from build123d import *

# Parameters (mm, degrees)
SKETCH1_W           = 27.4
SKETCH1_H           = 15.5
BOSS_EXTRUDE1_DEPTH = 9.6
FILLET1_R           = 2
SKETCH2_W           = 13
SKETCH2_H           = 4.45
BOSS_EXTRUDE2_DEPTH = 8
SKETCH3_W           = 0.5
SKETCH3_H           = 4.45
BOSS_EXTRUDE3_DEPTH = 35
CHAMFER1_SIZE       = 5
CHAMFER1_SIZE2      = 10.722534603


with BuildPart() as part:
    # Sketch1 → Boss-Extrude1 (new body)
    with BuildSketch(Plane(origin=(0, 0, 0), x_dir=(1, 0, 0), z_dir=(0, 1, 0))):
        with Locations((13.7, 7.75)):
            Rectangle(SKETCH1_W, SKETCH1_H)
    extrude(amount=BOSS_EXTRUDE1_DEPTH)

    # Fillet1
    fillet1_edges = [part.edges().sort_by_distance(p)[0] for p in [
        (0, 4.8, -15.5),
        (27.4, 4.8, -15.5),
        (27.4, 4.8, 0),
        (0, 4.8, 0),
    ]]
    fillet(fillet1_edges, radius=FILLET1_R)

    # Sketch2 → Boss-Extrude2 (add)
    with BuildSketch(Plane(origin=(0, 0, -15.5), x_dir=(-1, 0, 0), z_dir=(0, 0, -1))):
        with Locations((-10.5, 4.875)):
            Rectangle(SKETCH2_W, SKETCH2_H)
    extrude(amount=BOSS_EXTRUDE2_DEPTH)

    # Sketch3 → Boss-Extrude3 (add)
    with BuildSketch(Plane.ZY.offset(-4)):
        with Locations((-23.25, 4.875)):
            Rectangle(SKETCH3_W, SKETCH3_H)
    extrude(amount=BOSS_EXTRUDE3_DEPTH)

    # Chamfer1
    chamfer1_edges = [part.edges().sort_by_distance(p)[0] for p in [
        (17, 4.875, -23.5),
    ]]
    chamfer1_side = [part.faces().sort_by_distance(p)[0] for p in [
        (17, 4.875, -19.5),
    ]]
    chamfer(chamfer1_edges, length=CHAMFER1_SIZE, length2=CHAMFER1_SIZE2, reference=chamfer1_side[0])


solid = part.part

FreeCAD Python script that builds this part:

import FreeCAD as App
import Part
import Sketcher

V = App.Vector


def edges_at(feature, points):
    """Names of the edges that pass closest to the given points."""
    edges = feature.Shape.Edges
    near = lambda p: min(range(len(edges)), key=lambda i: edges[i].distToShape(Part.Vertex(*p))[0])
    return sorted({f"Edge{near(p) + 1}" for p in points})


def add_polygon(sketch, points):
    """Adds a closed chain of lines whose ends are joined by coincident constraints."""
    first, n = sketch.GeometryCount, len(points)
    for a, b in zip(points, points[1:] + points[:1]):
        sketch.addGeometry(Part.LineSegment(App.Vector(*a, 0), App.Vector(*b, 0)), False)
    for i in range(n):
        sketch.addConstraint(Sketcher.Constraint("Coincident", first + i, 2, first + (i + 1) % n, 1))

doc = App.newDocument("Part")
params = doc.addObject("Spreadsheet::Sheet", "Params")
for row, (alias, value) in enumerate([
    ("sketch1_width", "27.4 mm"),
    ("sketch1_height", "15.5 mm"),
    ("pad1_length", "9.6 mm"),
    ("fillet_radius", "2 mm"),
    ("sketch2_width", "13 mm"),
    ("sketch2_height", "4.45 mm"),
    ("pad2_length", "8 mm"),
    ("sketch3_height", "0.5 mm"),
    ("sketch3_width", "4.45 mm"),
    ("pad3_length", "35 mm"),
    ("chamfer_size", "5 mm"),
    ("chamfer_size2", "10.722535 mm"),
], start=1):
    params.set(f"A{row}", alias)
    params.set(f"B{row}", "=" + value)
    params.setAlias(f"B{row}", alias)

body = doc.addObject("PartDesign::Body", "Body")

# Sketch on XZ plane
sketch1 = body.newObject("Sketcher::SketchObject", "Sketch")
sketch1.AttachmentSupport = (doc.getObject("XZ_Plane"), [""])
sketch1.MapMode = "FlatFace"
add_polygon(sketch1, [(0, -16), (0, 0), (27, 0), (27, -16)])  # lines 0-3
sketch1.addConstraint([
    Sketcher.Constraint("Vertical", 0),
    Sketcher.Constraint("Horizontal", 1),
    Sketcher.Constraint("Vertical", 2),
    Sketcher.Constraint("Horizontal", 3),
    Sketcher.Constraint("Coincident", 0, 2, -1, 1),
    Sketcher.Constraint("DistanceX", 1, 1, 1, 2, 27.4),
    Sketcher.Constraint("DistanceY", 0, 1, 0, 2, 15.5),
])
sketch1.setExpression("Constraints[9]", "Params.sketch1_width")
sketch1.setExpression("Constraints[10]", "Params.sketch1_height")
pad1 = body.newObject("PartDesign::Pad", "Pad")
pad1.Profile = sketch1
pad1.setExpression("Length", "Params.pad1_length")
pad1.Reversed = True
doc.recompute()

fillet = body.newObject("PartDesign::Fillet", "Fillet")
fillet.Base = (pad1, edges_at(pad1, [
    (0, 4.8, -15.5),
    (27.4, 4.8, -15.5),
    (27.4, 4.8, 0),
    (0, 4.8, 0),
]))
fillet.setExpression("Radius", "Params.fillet_radius")

# Sketch on XY plane
sketch2 = body.newObject("Sketcher::SketchObject", "Sketch001")
sketch2.AttachmentSupport = (doc.getObject("XY_Plane"), [""])
sketch2.MapMode = "FlatFace"
sketch2.AttachmentOffset = App.Placement(V(0, 0, -15.5), App.Rotation())
add_polygon(sketch2, [(17, 7.1), (17, 2.6), (4, 2.6), (4, 7.1)])  # lines 0-3
sketch2.addConstraint([
    Sketcher.Constraint("Vertical", 0),
    Sketcher.Constraint("Horizontal", 1),
    Sketcher.Constraint("Vertical", 2),
    Sketcher.Constraint("Horizontal", 3),
    Sketcher.Constraint("DistanceX", 1, 2, 1, 1, 13.0),
    Sketcher.Constraint("DistanceX", -1, 1, 0, 2, 17.0),
    Sketcher.Constraint("DistanceY", 0, 2, 0, 1, 4.45),
    Sketcher.Constraint("DistanceY", -1, 1, 2, 2, 7.1),
])
sketch2.setExpression("Constraints[8]", "Params.sketch2_width")
sketch2.setExpression("Constraints[10]", "Params.sketch2_height")
pad2 = body.newObject("PartDesign::Pad", "Pad001")
pad2.Profile = sketch2
pad2.setExpression("Length", "Params.pad2_length")
pad2.Reversed = True

# Sketch on YZ plane
sketch3 = body.newObject("Sketcher::SketchObject", "Sketch002")
sketch3.AttachmentSupport = (doc.getObject("YZ_Plane"), [""])
sketch3.MapMode = "FlatFace"
sketch3.AttachmentOffset = App.Placement(V(0, 0, 4), App.Rotation())
add_polygon(sketch3, [(7.1, -23.5), (2.6, -23.5), (2.6, -23), (7.1, -23)])  # lines 0-3
sketch3.addConstraint([
    Sketcher.Constraint("Horizontal", 0),
    Sketcher.Constraint("Vertical", 1),
    Sketcher.Constraint("Horizontal", 2),
    Sketcher.Constraint("Vertical", 3),
    Sketcher.Constraint("DistanceY", 1, 1, 1, 2, 0.5),
    Sketcher.Constraint("DistanceY", 1, 2, -1, 1, 23.0),
    Sketcher.Constraint("DistanceX", 0, 2, 0, 1, 4.45),
    Sketcher.Constraint("DistanceX", -1, 1, 2, 2, 7.1),
])
sketch3.setExpression("Constraints[8]", "Params.sketch3_height")
sketch3.setExpression("Constraints[10]", "Params.sketch3_width")
pad3 = body.newObject("PartDesign::Pad", "Pad002")
pad3.Profile = sketch3
pad3.setExpression("Length", "Params.pad3_length")
pad3.Reversed = True
doc.recompute()

chamfer = body.newObject("PartDesign::Chamfer", "Chamfer")
chamfer.Base = (pad3, edges_at(pad3, [(17, 4.875, -23.5)]))
chamfer.ChamferType = "Two distances"
chamfer.setExpression("Size", "Params.chamfer_size")
chamfer.setExpression("Size2", "Params.chamfer_size2")

doc.recompute()
